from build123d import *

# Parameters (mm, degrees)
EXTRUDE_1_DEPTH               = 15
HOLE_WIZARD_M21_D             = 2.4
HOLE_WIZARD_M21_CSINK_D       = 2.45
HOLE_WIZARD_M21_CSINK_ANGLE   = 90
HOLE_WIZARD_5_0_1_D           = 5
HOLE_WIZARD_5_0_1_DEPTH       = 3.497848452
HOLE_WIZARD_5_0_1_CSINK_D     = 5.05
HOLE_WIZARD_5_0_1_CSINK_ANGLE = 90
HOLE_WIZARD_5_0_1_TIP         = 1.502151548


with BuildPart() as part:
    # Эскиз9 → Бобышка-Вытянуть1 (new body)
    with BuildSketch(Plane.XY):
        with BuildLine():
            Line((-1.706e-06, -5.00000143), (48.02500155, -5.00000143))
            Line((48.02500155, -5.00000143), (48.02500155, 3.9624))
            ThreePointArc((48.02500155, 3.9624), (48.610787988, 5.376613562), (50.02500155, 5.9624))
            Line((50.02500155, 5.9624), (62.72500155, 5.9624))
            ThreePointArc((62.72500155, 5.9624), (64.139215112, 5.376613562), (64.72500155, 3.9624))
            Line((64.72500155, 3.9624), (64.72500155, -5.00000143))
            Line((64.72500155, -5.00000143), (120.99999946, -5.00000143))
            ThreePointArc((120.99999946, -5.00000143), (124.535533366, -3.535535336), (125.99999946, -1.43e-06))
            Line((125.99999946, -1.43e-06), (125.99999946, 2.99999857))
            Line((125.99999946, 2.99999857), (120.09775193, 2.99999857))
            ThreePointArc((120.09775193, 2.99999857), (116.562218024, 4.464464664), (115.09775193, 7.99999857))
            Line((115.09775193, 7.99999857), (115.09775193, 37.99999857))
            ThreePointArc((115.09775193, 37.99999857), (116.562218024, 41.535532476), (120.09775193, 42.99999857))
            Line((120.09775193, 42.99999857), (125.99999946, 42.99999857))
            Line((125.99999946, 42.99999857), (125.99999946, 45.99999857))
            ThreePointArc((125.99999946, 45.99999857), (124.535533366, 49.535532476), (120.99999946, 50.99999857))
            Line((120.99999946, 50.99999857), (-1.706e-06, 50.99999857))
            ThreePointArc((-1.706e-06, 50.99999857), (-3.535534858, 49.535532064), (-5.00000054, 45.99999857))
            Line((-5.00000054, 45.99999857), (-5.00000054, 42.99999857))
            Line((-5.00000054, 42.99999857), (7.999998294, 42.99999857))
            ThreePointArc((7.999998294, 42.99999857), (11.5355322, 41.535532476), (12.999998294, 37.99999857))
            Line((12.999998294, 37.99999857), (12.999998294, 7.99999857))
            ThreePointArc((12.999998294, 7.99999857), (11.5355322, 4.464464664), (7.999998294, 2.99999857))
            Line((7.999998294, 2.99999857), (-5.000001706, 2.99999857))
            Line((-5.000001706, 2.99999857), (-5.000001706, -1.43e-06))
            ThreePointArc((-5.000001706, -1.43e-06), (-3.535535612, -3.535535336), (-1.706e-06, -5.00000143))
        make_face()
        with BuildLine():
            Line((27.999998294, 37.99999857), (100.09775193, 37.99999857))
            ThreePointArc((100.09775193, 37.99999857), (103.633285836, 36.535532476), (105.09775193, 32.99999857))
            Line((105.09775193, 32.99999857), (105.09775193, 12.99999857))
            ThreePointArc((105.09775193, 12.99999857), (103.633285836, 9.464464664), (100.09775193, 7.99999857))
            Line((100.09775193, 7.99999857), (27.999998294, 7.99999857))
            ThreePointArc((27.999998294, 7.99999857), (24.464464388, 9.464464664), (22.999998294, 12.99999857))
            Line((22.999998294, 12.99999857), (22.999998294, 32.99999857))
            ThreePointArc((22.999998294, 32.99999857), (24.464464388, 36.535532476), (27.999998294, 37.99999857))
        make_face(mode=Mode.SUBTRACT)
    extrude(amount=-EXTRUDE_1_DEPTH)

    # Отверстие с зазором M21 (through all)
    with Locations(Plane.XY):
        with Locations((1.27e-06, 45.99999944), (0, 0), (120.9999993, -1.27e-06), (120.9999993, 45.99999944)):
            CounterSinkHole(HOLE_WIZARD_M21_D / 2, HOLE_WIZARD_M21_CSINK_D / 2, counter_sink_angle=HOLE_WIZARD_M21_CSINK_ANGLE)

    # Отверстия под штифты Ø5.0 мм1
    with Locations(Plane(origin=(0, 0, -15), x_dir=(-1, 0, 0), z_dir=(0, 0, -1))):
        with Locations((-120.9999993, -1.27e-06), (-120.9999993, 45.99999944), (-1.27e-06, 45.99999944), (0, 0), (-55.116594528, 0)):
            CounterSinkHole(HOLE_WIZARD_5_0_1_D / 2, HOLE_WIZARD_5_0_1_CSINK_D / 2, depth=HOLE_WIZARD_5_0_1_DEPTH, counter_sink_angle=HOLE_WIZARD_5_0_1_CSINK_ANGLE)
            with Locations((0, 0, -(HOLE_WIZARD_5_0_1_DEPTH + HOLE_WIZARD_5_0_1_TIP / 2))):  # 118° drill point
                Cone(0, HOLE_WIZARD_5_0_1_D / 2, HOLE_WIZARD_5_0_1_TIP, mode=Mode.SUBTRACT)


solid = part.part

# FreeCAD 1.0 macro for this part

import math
import FreeCAD as App
import Part
import Sketcher
from FreeCAD import Vector

doc = App.newDocument("Part")
body = doc.addObject("PartDesign::Body", "Body")

sketch1 = body.newObject("Sketcher::SketchObject", "Sketch")
sketch1.AttachmentSupport = (doc.getObject("XY_Plane"), [""])
sketch1.MapMode = "FlatFace"
sketch1.addGeometry(Part.LineSegment(Vector(0, -5, 0), Vector(48, -5, 0)), False)
sketch1.addGeometry(Part.LineSegment(Vector(48, -5, 0), Vector(48, 4, 0)), False)
sketch1.addGeometry(Part.ArcOfCircle(Part.Circle(Vector(50, 4, 0), Vector(0, 0, 1), 2), math.radians(90), math.radians(180)), False)
sketch1.addGeometry(Part.LineSegment(Vector(50, 6, 0), Vector(62.7, 6, 0)), False)
sketch1.addGeometry(Part.ArcOfCircle(Part.Circle(Vector(62.7, 4, 0), Vector(0, 0, 1), 2), math.radians(0), math.radians(90)), False)
sketch1.addGeometry(Part.LineSegment(Vector(64.7, 4, 0), Vector(64.7, -5, 0)), False)
sketch1.addGeometry(Part.LineSegment(Vector(64.7, -5, 0), Vector(121, -5, 0)), False)
sketch1.addGeometry(Part.ArcOfCircle(Part.Circle(Vector(121, 0, 0), Vector(0, 0, 1), 5), math.radians(-90), math.radians(0)), False)
sketch1.addGeometry(Part.LineSegment(Vector(126, 0, 0), Vector(126, 3, 0)), False)
sketch1.addGeometry(Part.LineSegment(Vector(126, 3, 0), Vector(120.1, 3, 0)), False)
sketch1.addGeometry(Part.ArcOfCircle(Part.Circle(Vector(120.1, 8, 0), Vector(0, 0, 1), 5), math.radians(180), math.radians(270)), False)
sketch1.addGeometry(Part.LineSegment(Vector(115.1, 8, 0), Vector(115.1, 38, 0)), False)
sketch1.addGeometry(Part.ArcOfCircle(Part.Circle(Vector(120.1, 38, 0), Vector(0, 0, 1), 5), math.radians(90), math.radians(180)), False)
sketch1.addGeometry(Part.LineSegment(Vector(120.1, 43, 0), Vector(126, 43, 0)), False)
sketch1.addGeometry(Part.LineSegment(Vector(126, 43, 0), Vector(126, 46, 0)), False)
sketch1.addGeometry(Part.ArcOfCircle(Part.Circle(Vector(121, 46, 0), Vector(0, 0, 1), 5), math.radians(0), math.radians(90)), False)
sketch1.addGeometry(Part.LineSegment(Vector(121, 51, 0), Vector(0, 51, 0)), False)
sketch1.addGeometry(Part.ArcOfCircle(Part.Circle(Vector(0, 46, 0), Vector(0, 0, 1), 5), math.radians(90), math.radians(180)), False)
sketch1.addGeometry(Part.LineSegment(Vector(-5, 46, 0), Vector(-5, 43, 0)), False)
sketch1.addGeometry(Part.LineSegment(Vector(-5, 43, 0), Vector(8, 43, 0)), False)
sketch1.addGeometry(Part.ArcOfCircle(Part.Circle(Vector(8, 38, 0), Vector(0, 0, 1), 5), math.radians(0), math.radians(90)), False)
sketch1.addGeometry(Part.LineSegment(Vector(13, 38, 0), Vector(13, 8, 0)), False)
sketch1.addGeometry(Part.ArcOfCircle(Part.Circle(Vector(8, 8, 0), Vector(0, 0, 1), 5), math.radians(-90), math.radians(0)), False)
sketch1.addGeometry(Part.LineSegment(Vector(8, 3, 0), Vector(-5, 3, 0)), False)
sketch1.addGeometry(Part.LineSegment(Vector(-5, 3, 0), Vector(-5, 0, 0)), False)
sketch1.addGeometry(Part.ArcOfCircle(Part.Circle(Vector(0, 0, 0), Vector(0, 0, 1), 5), math.radians(180), math.radians(270)), False)
sketch1.addGeometry(Part.ArcOfCircle(Part.Circle(Vector(28, 33, 0), Vector(0, 0, 1), 5), math.radians(90), math.radians(180)), False)
sketch1.addGeometry(Part.LineSegment(Vector(28, 38, 0), Vector(100.1, 38, 0)), False)
sketch1.addGeometry(Part.ArcOfCircle(Part.Circle(Vector(100.1, 33, 0), Vector(0, 0, 1), 5), math.radians(0), math.radians(90)), False)
sketch1.addGeometry(Part.LineSegment(Vector(105.1, 33, 0), Vector(105.1, 13, 0)), False)
sketch1.addGeometry(Part.ArcOfCircle(Part.Circle(Vector(100.1, 13, 0), Vector(0, 0, 1), 5), math.radians(-90), math.radians(0)), False)
sketch1.addGeometry(Part.LineSegment(Vector(100.1, 8, 0), Vector(28, 8, 0)), False)
sketch1.addGeometry(Part.ArcOfCircle(Part.Circle(Vector(28, 13, 0), Vector(0, 0, 1), 5), math.radians(180), math.radians(270)), False)
sketch1.addGeometry(Part.LineSegment(Vector(23, 13, 0), Vector(23, 33, 0)), False)
sketch1.addConstraint(Sketcher.Constraint("Coincident", 0, 2, 1, 1))
sketch1.addConstraint(Sketcher.Constraint("Tangent", 1, 2, 2, 2))
sketch1.addConstraint(Sketcher.Constraint("Tangent", 2, 1, 3, 1))
sketch1.addConstraint(Sketcher.Constraint("Tangent", 3, 2, 4, 2))
sketch1.addConstraint(Sketcher.Constraint("Tangent", 4, 1, 5, 1))
sketch1.addConstraint(Sketcher.Constraint("Coincident", 5, 2, 6, 1))
sketch1.addConstraint(Sketcher.Constraint("Tangent", 6, 2, 7, 1))
sketch1.addConstraint(Sketcher.Constraint("Tangent", 7, 2, 8, 1))
sketch1.addConstraint(Sketcher.Constraint("Coincident", 8, 2, 9, 1))
sketch1.addConstraint(Sketcher.Constraint("Tangent", 9, 2, 10, 2))
sketch1.addConstraint(Sketcher.Constraint("Tangent", 10, 1, 11, 1))
sketch1.addConstraint(Sketcher.Constraint("Tangent", 11, 2, 12, 2))
sketch1.addConstraint(Sketcher.Constraint("Tangent", 12, 1, 13, 1))
sketch1.addConstraint(Sketcher.Constraint("Coincident", 13, 2, 14, 1))
sketch1.addConstraint(Sketcher.Constraint("Tangent", 14, 2, 15, 1))
sketch1.addConstraint(Sketcher.Constraint("Tangent", 15, 2, 16, 1))
sketch1.addConstraint(Sketcher.Constraint("Tangent", 16, 2, 17, 1))
sketch1.addConstraint(Sketcher.Constraint("Tangent", 17, 2, 18, 1))
sketch1.addConstraint(Sketcher.Constraint("Coincident", 18, 2, 19, 1))
sketch1.addConstraint(Sketcher.Constraint("Tangent", 19, 2, 20, 2))
sketch1.addConstraint(Sketcher.Constraint("Tangent", 20, 1, 21, 1))
sketch1.addConstraint(Sketcher.Constraint("Tangent", 21, 2, 22, 2))
sketch1.addConstraint(Sketcher.Constraint("Tangent", 22, 1, 23, 1))
sketch1.addConstraint(Sketcher.Constraint("Coincident", 23, 2, 24, 1))
sketch1.addConstraint(Sketcher.Constraint("Tangent", 24, 2, 25, 1))
sketch1.addConstraint(Sketcher.Constraint("Tangent", 25, 2, 0, 1))
sketch1.addConstraint(Sketcher.Constraint("Tangent", 26, 1, 27, 1))
sketch1.addConstraint(Sketcher.Constraint("Tangent", 27, 2, 28, 2))
sketch1.addConstraint(Sketcher.Constraint("Tangent", 28, 1, 29, 1))
sketch1.addConstraint(Sketcher.Constraint("Tangent", 29, 2, 30, 2))
sketch1.addConstraint(Sketcher.Constraint("Tangent", 30, 1, 31, 1))
sketch1.addConstraint(Sketcher.Constraint("Tangent", 31, 2, 32, 2))
sketch1.addConstraint(Sketcher.Constraint("Tangent", 32, 1, 33, 1))
sketch1.addConstraint(Sketcher.Constraint("Tangent", 33, 2, 26, 2))
sketch1.addConstraint(Sketcher.Constraint("Horizontal", 0))
sketch1.addConstraint(Sketcher.Constraint("Vertical", 1))
sketch1.addConstraint(Sketcher.Constraint("Horizontal", 3))
sketch1.addConstraint(Sketcher.Constraint("Vertical", 5))
sketch1.addConstraint(Sketcher.Constraint("Horizontal", 6))
sketch1.addConstraint(Sketcher.Constraint("Vertical", 8))
sketch1.addConstraint(Sketcher.Constraint("Horizontal", 9))
sketch1.addConstraint(Sketcher.Constraint("Vertical", 11))
sketch1.addConstraint(Sketcher.Constraint("Horizontal", 13))
sketch1.addConstraint(Sketcher.Constraint("Vertical", 14))
sketch1.addConstraint(Sketcher.Constraint("Horizontal", 16))
sketch1.addConstraint(Sketcher.Constraint("Vertical", 18))
sketch1.addConstraint(Sketcher.Constraint("Horizontal", 19))
sketch1.addConstraint(Sketcher.Constraint("Vertical", 21))
sketch1.addConstraint(Sketcher.Constraint("Horizontal", 23))
sketch1.addConstraint(Sketcher.Constraint("Vertical", 24))
sketch1.addConstraint(Sketcher.Constraint("Horizontal", 27))
sketch1.addConstraint(Sketcher.Constraint("Vertical", 29))
sketch1.addConstraint(Sketcher.Constraint("Horizontal", 31))
sketch1.addConstraint(Sketcher.Constraint("Vertical", 33))
sketch1.addConstraint(Sketcher.Constraint("Coincident", 25, 3, -1, 1))
sketch1.addConstraint(Sketcher.Constraint("Equal", 2, 4))
sketch1.addConstraint(Sketcher.Constraint("Equal", 7, 10))
sketch1.addConstraint(Sketcher.Constraint("Equal", 10, 12))
sketch1.addConstraint(Sketcher.Constraint("Equal", 12, 15))
sketch1.addConstraint(Sketcher.Constraint("Equal", 15, 17))
sketch1.addConstraint(Sketcher.Constraint("Equal", 17, 20))
sketch1.addConstraint(Sketcher.Constraint("Equal", 20, 22))
sketch1.addConstraint(Sketcher.Constraint("Equal", 22, 25))
sketch1.addConstraint(Sketcher.Constraint("Equal", 25, 26))
sketch1.addConstraint(Sketcher.Constraint("Equal", 26, 28))
sketch1.addConstraint(Sketcher.Constraint("Equal", 28, 30))
sketch1.addConstraint(Sketcher.Constraint("Equal", 30, 32))
sketch1.addConstraint(Sketcher.Constraint("PointOnObject", 7, 3, -1))
sketch1.addConstraint(Sketcher.Constraint("PointOnObject", 17, 3, -2))
sketch1.addConstraint(Sketcher.Constraint("Horizontal", 12, 3, 20, 3))
sketch1.addConstraint(Sketcher.Constraint("Horizontal", 10, 3, 22, 3))
sketch1.addConstraint(Sketcher.Constraint("Horizontal", 20, 1, 26, 1))
sketch1.addConstraint(Sketcher.Constraint("Horizontal", 21, 2, 30, 1))
sketch1.addConstraint(Sketcher.Constraint("Vertical", 7, 3, 15, 3))
sketch1.addConstraint(Sketcher.Constraint("Equal", 8, 14))
sketch1.addConstraint(Sketcher.Constraint("Radius", 2, 2.0))
sketch1.addConstraint(Sketcher.Constraint("Radius", 7, 5.0))
sketch1.addConstraint(Sketcher.Constraint("DistanceX", 16, 2, 16, 1, 121.000001))
sketch1.addConstraint(Sketcher.Constraint("DistanceX", 19, 1, 19, 2, 12.999999))
sketch1.addConstraint(Sketcher.Constraint("DistanceY", 8, 1, 8, 2, 3.0))
sketch1.addConstraint(Sketcher.Constraint("DistanceY", 11, 1, 11, 2, 30.0))
sketch1.addConstraint(Sketcher.Constraint("DistanceX", 3, 1, 3, 2, 12.7))
sketch1.addConstraint(Sketcher.Constraint("DistanceX", -1, 1, 26, 3, 27.999998))
sketch1.addConstraint(Sketcher.Constraint("DistanceX", 28, 3, 12, 3, 20.0))
sketch1.addConstraint(Sketcher.Constraint("DistanceY", 1, 1, 1, 2, 8.962401))
sketch1.addConstraint(Sketcher.Constraint("DistanceX", -1, 1, 2, 3, 50.025002))
sketch1.addConstraint(Sketcher.Constraint("DistanceX", 9, 2, 9, 1, 5.902248))
pad1 = body.newObject("PartDesign::Pad", "Pad")
pad1.Profile = sketch1
pad1.Length = 15
pad1.Reversed = True

sketch2 = body.newObject("Sketcher::SketchObject", "Sketch001")
sketch2.AttachmentSupport = (doc.getObject("XY_Plane"), [""])
sketch2.MapMode = "FlatFace"
sketch2.addGeometry(Part.Circle(Vector(0, 46, 0), Vector(0, 0, 1), 1.2), False)
sketch2.addGeometry(Part.Circle(Vector(0, 0, 0), Vector(0, 0, 1), 1.2), False)
sketch2.addGeometry(Part.Circle(Vector(121, 0, 0), Vector(0, 0, 1), 1.2), False)
sketch2.addGeometry(Part.Circle(Vector(121, 46, 0), Vector(0, 0, 1), 1.2), False)
sketch2.addConstraint(Sketcher.Constraint("Coincident", 1, 3, -1, 1))
sketch2.addConstraint(Sketcher.Constraint("Equal", 0, 1))
sketch2.addConstraint(Sketcher.Constraint("Equal", 1, 2))
sketch2.addConstraint(Sketcher.Constraint("Equal", 2, 3))
sketch2.addConstraint(Sketcher.Constraint("PointOnObject", 0, 3, -2))
sketch2.addConstraint(Sketcher.Constraint("PointOnObject", 2, 3, -1))
sketch2.addConstraint(Sketcher.Constraint("Horizontal", 0, 3, 3, 3))
sketch2.addConstraint(Sketcher.Constraint("Vertical", 2, 3, 3, 3))
sketch2.addConstraint(Sketcher.Constraint("Diameter", 0, 2.4))
sketch2.addConstraint(Sketcher.Constraint("DistanceY", -1, 1, 0, 3, 45.999999))
sketch2.addConstraint(Sketcher.Constraint("DistanceX", -1, 1, 2, 3, 120.999999))
doc.recompute()
hole = body.newObject("PartDesign::Hole", "Hole")
hole.Profile = sketch2
hole.ThreadType = "None"
hole.Diameter = 2.4
hole.DepthType = "ThroughAll"
hole.HoleCutType = "Countersink"
hole.HoleCutDiameter = 2.45
hole.HoleCutCountersinkAngle = 90

sketch3 = body.newObject("Sketcher::SketchObject", "Sketch002")
sketch3.AttachmentSupport = (doc.getObject("XY_Plane"), [""])
sketch3.MapMode = "FlatFace"
sketch3.AttachmentOffset = App.Placement(Vector(0, 0, -15), App.Rotation())
sketch3.addGeometry(Part.Circle(Vector(121, 0, 0), Vector(0, 0, 1), 2.5), False)
sketch3.addGeometry(Part.Circle(Vector(121, 46, 0), Vector(0, 0, 1), 2.5), False)
sketch3.addGeometry(Part.Circle(Vector(0, 46, 0), Vector(0, 0, 1), 2.5), False)
sketch3.addGeometry(Part.Circle(Vector(0, 0, 0), Vector(0, 0, 1), 2.5), False)
sketch3.addGeometry(Part.Circle(Vector(55.1, 0, 0), Vector(0, 0, 1), 2.5), False)
sketch3.addConstraint(Sketcher.Constraint("Coincident", 3, 3, -1, 1))
sketch3.addConstraint(Sketcher.Constraint("Equal", 0, 1))
sketch3.addConstraint(Sketcher.Constraint("Equal", 1, 2))
sketch3.addConstraint(Sketcher.Constraint("Equal", 2, 3))
sketch3.addConstraint(Sketcher.Constraint("Equal", 3, 4))
sketch3.addConstraint(Sketcher.Constraint("PointOnObject", 0, 3, -1))
sketch3.addConstraint(Sketcher.Constraint("PointOnObject", 2, 3, -2))
sketch3.addConstraint(Sketcher.Constraint("PointOnObject", 4, 3, -1))
sketch3.addConstraint(Sketcher.Constraint("Horizontal", 1, 3, 2, 3))
sketch3.addConstraint(Sketcher.Constraint("Vertical", 0, 3, 1, 3))
sketch3.addConstraint(Sketcher.Constraint("Diameter", 0, 5.0))
sketch3.addConstraint(Sketcher.Constraint("DistanceX", -1, 1, 0, 3, 120.999999))
sketch3.addConstraint(Sketcher.Constraint("DistanceY", -1, 1, 1, 3, 45.999999))
sketch3.addConstraint(Sketcher.Constraint("DistanceX", -1, 1, 4, 3, 55.116595))
doc.recompute()
hole2 = body.newObject("PartDesign::Hole", "Hole001")
hole2.Profile = sketch3
hole2.ThreadType = "None"
hole2.Diameter = 5
hole2.DepthType = "Dimension"
hole2.Depth = 3.497848
hole2.DrillPoint = "Angled"
hole2.DrillPointAngle = 118
hole2.HoleCutType = "Countersink"
hole2.HoleCutDiameter = 5.05
hole2.HoleCutCountersinkAngle = 90
hole2.Reversed = True

doc.recompute()
